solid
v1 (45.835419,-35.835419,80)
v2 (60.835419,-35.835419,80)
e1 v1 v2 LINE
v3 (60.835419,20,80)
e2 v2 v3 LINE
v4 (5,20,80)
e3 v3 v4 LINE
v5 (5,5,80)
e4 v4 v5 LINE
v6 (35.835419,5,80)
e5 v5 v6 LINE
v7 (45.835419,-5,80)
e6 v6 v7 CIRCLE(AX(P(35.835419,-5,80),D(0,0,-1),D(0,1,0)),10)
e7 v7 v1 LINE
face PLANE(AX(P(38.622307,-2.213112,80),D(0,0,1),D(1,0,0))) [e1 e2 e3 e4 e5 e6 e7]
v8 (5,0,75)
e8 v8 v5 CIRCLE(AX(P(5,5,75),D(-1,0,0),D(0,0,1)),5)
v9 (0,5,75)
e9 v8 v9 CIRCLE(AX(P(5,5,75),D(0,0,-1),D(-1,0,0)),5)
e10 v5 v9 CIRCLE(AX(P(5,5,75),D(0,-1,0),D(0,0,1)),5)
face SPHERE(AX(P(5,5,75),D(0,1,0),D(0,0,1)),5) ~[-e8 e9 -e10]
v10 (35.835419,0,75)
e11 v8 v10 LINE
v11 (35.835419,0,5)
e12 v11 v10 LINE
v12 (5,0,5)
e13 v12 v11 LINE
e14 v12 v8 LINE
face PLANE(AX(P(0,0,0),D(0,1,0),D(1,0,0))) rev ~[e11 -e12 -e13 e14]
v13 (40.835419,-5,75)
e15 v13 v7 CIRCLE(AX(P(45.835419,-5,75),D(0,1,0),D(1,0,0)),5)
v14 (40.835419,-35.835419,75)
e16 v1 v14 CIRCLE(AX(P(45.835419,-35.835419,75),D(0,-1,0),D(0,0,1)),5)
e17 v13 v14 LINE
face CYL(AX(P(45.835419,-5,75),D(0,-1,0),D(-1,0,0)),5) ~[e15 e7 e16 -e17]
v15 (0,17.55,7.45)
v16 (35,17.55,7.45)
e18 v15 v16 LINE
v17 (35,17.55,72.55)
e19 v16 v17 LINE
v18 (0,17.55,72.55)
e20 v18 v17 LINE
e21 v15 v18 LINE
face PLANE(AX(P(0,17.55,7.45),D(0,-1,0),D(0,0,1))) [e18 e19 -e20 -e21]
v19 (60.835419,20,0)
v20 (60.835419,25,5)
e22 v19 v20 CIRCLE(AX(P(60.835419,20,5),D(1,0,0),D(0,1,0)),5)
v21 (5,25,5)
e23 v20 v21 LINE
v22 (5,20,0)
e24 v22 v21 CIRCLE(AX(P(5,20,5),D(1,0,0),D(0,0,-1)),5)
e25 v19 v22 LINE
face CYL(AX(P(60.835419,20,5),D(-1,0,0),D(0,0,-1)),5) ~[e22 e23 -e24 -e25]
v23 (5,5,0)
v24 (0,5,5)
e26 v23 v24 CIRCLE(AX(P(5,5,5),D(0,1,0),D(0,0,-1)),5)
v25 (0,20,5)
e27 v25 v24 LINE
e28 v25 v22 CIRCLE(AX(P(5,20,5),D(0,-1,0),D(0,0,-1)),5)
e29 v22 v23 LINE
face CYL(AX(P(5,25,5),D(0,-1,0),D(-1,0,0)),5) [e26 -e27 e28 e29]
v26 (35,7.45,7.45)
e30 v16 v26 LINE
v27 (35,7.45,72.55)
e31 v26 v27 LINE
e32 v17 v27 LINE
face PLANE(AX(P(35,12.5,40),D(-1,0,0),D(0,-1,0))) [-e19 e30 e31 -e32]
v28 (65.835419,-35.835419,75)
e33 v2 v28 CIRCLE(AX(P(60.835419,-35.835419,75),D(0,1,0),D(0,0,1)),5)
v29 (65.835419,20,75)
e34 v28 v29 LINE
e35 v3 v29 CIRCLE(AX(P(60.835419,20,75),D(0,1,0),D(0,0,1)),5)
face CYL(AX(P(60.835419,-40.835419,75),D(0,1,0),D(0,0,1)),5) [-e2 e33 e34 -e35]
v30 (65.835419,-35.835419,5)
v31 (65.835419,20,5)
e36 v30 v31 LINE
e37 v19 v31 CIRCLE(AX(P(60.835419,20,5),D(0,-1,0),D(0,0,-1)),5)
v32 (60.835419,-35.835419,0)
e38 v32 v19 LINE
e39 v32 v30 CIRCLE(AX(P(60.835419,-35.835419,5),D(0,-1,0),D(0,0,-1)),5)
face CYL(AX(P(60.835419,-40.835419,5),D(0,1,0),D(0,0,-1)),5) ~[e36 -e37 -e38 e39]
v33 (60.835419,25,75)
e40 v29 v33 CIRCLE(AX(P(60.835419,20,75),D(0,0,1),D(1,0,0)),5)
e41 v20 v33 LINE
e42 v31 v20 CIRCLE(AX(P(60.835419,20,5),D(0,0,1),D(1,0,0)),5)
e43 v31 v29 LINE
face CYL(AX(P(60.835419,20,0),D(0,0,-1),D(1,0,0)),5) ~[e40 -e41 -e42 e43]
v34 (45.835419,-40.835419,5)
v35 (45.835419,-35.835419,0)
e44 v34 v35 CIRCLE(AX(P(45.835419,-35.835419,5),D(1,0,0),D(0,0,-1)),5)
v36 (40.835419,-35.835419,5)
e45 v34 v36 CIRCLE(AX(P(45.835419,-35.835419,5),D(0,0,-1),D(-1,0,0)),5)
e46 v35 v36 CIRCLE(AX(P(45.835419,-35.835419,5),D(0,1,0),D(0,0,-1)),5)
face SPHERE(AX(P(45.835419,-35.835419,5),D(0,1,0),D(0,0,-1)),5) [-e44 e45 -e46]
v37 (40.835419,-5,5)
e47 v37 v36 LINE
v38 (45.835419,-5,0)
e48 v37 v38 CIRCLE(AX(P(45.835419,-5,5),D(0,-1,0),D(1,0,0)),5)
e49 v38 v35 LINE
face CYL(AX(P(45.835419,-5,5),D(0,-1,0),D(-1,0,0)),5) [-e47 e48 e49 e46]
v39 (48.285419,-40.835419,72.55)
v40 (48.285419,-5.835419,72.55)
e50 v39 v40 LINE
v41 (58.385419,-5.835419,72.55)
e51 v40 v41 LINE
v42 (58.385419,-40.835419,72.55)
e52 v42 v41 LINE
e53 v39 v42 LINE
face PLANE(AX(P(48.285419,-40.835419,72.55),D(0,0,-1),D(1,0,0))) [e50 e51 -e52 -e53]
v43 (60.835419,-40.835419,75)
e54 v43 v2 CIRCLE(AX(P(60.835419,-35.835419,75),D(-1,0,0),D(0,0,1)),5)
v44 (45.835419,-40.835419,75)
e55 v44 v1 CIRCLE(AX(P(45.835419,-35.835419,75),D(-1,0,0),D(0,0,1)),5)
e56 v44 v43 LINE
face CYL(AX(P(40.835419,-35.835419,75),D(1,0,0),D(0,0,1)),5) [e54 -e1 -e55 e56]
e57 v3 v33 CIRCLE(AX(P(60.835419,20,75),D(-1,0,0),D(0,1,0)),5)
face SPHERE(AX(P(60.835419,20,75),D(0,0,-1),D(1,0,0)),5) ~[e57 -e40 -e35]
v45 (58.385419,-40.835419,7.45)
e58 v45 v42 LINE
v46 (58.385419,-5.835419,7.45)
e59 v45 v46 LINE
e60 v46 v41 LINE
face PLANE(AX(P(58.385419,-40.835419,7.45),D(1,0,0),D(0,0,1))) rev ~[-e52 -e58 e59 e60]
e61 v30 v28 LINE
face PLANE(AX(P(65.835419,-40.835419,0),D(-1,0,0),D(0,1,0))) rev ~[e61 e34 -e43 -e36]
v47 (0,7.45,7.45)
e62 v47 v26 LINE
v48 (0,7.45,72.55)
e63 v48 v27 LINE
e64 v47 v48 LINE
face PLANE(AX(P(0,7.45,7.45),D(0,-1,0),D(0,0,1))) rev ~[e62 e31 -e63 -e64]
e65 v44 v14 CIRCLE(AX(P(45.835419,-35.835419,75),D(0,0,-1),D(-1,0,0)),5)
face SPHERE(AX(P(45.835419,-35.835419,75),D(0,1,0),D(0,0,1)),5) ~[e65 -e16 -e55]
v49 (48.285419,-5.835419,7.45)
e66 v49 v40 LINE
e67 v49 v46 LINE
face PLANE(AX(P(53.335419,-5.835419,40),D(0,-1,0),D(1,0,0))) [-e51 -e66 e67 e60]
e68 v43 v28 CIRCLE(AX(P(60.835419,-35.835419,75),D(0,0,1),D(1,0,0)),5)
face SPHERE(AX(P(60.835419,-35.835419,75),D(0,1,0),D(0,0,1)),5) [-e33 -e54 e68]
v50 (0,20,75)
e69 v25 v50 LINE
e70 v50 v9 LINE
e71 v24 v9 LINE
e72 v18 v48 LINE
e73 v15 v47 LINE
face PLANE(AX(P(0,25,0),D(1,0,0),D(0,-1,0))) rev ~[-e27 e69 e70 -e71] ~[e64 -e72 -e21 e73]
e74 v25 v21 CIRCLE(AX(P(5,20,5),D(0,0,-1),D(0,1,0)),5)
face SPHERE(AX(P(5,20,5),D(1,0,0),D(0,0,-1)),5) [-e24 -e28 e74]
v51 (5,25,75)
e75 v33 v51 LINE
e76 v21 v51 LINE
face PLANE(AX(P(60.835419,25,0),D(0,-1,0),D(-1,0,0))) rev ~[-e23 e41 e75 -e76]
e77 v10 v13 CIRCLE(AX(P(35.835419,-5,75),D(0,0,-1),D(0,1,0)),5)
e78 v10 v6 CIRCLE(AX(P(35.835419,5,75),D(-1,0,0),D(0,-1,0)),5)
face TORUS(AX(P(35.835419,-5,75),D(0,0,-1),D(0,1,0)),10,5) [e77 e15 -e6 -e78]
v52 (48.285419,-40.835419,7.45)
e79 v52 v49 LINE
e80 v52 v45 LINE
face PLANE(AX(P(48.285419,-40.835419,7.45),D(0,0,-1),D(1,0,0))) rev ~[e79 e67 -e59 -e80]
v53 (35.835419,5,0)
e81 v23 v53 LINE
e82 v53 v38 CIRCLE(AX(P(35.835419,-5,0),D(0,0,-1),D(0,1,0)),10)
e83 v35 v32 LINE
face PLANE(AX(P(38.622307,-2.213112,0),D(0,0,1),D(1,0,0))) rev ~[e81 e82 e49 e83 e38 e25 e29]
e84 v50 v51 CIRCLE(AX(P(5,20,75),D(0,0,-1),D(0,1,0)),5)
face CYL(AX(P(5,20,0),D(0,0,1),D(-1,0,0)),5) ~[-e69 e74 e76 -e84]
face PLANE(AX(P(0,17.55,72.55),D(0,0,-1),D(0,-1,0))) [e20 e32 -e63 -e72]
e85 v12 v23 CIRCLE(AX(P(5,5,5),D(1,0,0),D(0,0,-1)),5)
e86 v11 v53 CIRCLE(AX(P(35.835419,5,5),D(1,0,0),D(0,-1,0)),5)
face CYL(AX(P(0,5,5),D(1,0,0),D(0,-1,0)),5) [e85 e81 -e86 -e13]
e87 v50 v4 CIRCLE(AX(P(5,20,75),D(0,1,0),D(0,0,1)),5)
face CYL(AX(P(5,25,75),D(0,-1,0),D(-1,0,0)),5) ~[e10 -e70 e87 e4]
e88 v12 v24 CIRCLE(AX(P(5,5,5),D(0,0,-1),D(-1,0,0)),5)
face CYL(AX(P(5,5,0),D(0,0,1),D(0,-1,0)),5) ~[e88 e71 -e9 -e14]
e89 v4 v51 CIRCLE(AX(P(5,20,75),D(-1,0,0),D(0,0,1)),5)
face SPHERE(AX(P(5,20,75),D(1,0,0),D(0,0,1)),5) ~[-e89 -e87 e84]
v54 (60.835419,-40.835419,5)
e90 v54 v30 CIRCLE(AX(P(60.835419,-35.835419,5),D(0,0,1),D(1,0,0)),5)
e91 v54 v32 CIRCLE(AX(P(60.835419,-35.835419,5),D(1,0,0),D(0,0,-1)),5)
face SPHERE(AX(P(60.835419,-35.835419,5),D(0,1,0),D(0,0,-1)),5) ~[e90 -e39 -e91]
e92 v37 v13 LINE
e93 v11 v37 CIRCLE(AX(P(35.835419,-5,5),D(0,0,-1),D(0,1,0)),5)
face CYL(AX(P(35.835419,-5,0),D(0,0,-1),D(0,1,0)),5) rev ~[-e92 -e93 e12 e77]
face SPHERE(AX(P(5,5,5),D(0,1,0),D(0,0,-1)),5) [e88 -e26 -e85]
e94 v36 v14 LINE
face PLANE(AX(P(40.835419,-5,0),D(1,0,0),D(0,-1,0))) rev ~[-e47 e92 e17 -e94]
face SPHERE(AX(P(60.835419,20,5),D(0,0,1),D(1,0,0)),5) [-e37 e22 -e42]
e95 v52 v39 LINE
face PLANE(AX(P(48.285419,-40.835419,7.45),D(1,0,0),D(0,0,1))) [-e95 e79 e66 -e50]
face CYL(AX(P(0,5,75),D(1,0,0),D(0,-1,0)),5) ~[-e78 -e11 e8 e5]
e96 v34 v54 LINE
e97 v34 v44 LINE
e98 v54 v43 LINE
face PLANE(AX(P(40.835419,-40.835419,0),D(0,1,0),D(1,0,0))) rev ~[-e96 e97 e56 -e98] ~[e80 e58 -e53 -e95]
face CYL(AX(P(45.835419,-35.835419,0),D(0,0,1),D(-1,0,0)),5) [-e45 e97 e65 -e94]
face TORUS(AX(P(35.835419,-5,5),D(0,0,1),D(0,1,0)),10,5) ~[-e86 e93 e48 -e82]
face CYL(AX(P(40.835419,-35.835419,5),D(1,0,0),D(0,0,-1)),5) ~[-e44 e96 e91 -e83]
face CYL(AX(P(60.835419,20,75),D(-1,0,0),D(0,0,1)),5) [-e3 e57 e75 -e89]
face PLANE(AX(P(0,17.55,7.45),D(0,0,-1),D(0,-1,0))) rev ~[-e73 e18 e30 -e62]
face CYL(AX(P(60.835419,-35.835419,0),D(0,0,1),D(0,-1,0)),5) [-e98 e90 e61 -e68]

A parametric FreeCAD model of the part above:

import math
import FreeCAD as App
import Part
import Sketcher
from FreeCAD import Vector
Q = App.Units.Quantity


def edges_at(feature, points):
    """Names of the edges that pass closest to the given points."""
    edges = feature.Shape.Edges
    near = lambda p: min(range(len(edges)), key=lambda i: edges[i].distToShape(Part.Vertex(*p))[0])
    return sorted({f"Edge{near(p) + 1}" for p in points})


def add_polygon(sketch, points):
    """Adds a closed chain of lines whose ends are joined by coincident constraints."""
    first, n = sketch.GeometryCount, len(points)
    for a, b in zip(points, points[1:] + points[:1]):
        sketch.addGeometry(Part.LineSegment(App.Vector(*a, 0), App.Vector(*b, 0)), False)
    for i in range(n):
        sketch.addConstraint(Sketcher.Constraint("Coincident", first + i, 2, first + (i + 1) % n, 1))

doc = App.newDocument("Part")
params = doc.addObject("Spreadsheet::Sheet", "Params")
for row, (alias, value) in enumerate([
    ("sketch1_radius", "5 mm"),
    ("sketch1_width", "25 mm"),
    ("pad1_length", "80 mm"),
    ("sketch2_width", "10.1 mm"),
    ("sketch2_height", "65.1 mm"),
    ("pocket1_length", "35 mm"),
    ("sketch3_width", "10.1 mm"),
    ("sketch3_height", "65.1 mm"),
    ("pocket2_length", "35 mm"),
    ("fillet_radius", "5 mm"),
], start=1):
    params.set(f"A{row}", alias)
    params.set(f"B{row}", "=" + value)
    params.setAlias(f"B{row}", alias)

body = doc.addObject("PartDesign::Body", "Body")

# Sketch on XY plane
sketch1 = doc.addObject("Sketcher::SketchObject", "Sketch")
body.addObject(sketch1)
sketch1.AttachmentSupport = (doc.XY_Plane, [""])
sketch1.MapMode = "FlatFace"
sketch1.addGeometry([
    Part.LineSegment(Vector(0, 0, 0), Vector(36, 0, 0)),  # 0
    Part.ArcOfCircle(Part.Circle(Vector(36, -5, 0), Vector(0, 0, 1), 5), math.radians(0), math.radians(90)),  # 1
    Part.LineSegment(Vector(41, -5, 0), Vector(41, -41, 0)),  # 2
    Part.LineSegment(Vector(41, -41, 0), Vector(66, -41, 0)),  # 3
    Part.LineSegment(Vector(66, -41, 0), Vector(66, 20, 0)),  # 4
    Part.ArcOfCircle(Part.Circle(Vector(61, 20, 0), Vector(0, 0, 1), 5), math.radians(0), math.radians(90)),  # 5
    Part.LineSegment(Vector(61, 25, 0), Vector(0, 25, 0)),  # 6
    Part.LineSegment(Vector(0, 25, 0), Vector(0, 0, 0)),  # 7
], False)
sketch1.addConstraint([
    Sketcher.Constraint("Tangent", 0, 2, 1, 2),
    Sketcher.Constraint("Tangent", 1, 1, 2, 1),
    Sketcher.Constraint("Coincident", 2, 2, 3, 1),
    Sketcher.Constraint("Coincident", 3, 2, 4, 1),
    Sketcher.Constraint("Tangent", 4, 2, 5, 1),
    Sketcher.Constraint("Tangent", 5, 2, 6, 1),
    Sketcher.Constraint("Coincident", 6, 2, 7, 1),
    Sketcher.Constraint("Coincident", 7, 2, 0, 1),
    Sketcher.Constraint("Horizontal", 0),
    Sketcher.Constraint("Vertical", 2),
    Sketcher.Constraint("Horizontal", 3),
    Sketcher.Constraint("Vertical", 4),
    Sketcher.Constraint("Horizontal", 6),
    Sketcher.Constraint("Vertical", 7),
    Sketcher.Constraint("Coincident", 7, 2, -1, 1),
    Sketcher.Constraint("Equal", 1, 5),
    Sketcher.Constraint("Equal", 0, 2),
    Sketcher.Constraint("Equal", 6, 4),
    Sketcher.Constraint("Radius", 1, Q("5 mm")),
    Sketcher.Constraint("DistanceX", 3, 1, 3, 2, Q("25 mm")),
    Sketcher.Constraint("DistanceX", 0, 1, 0, 2, Q("35.835419 mm")),
])
sketch1.setExpression("Constraints[18]", "Params.sketch1_radius")
sketch1.setExpression("Constraints[19]", "Params.sketch1_width")
pad1 = doc.addObject("PartDesign::Pad", "Pad")
body.addObject(pad1)
pad1.Profile = sketch1
pad1.setExpression("Length", "Params.pad1_length")

# Sketch on XZ plane
sketch2 = doc.addObject("Sketcher::SketchObject", "Sketch001")
body.addObject(sketch2)
sketch2.AttachmentSupport = (doc.XZ_Plane, [""])
sketch2.MapMode = "FlatFace"
sketch2.AttachmentOffset = App.Placement(Vector(0, 0, 40.835419), App.Rotation())
add_polygon(sketch2, [(48, 73), (48, 7), (58, 7), (58, 73)])  # lines 0-3
sketch2.addConstraint([
    Sketcher.Constraint("Vertical", 0),
    Sketcher.Constraint("Horizontal", 1),
    Sketcher.Constraint("Vertical", 2),
    Sketcher.Constraint("Horizontal", 3),
    Sketcher.Constraint("DistanceX", 1, 1, 1, 2, Q("10.1 mm")),
    Sketcher.Constraint("DistanceY", 0, 2, 0, 1, Q("65.1 mm")),
    Sketcher.Constraint("DistanceY", -1, 1, 0, 2, Q("7.45 mm")),
    Sketcher.Constraint("DistanceX", -1, 1, 0, 2, Q("48.285419 mm")),
])
sketch2.setExpression("Constraints[8]", "Params.sketch2_width")
sketch2.setExpression("Constraints[9]", "Params.sketch2_height")
pocket1 = doc.addObject("PartDesign::Pocket", "Pocket")
body.addObject(pocket1)
pocket1.Profile = sketch2
pocket1.setExpression("Length", "Params.pocket1_length")

# Sketch on YZ plane
sketch3 = doc.addObject("Sketcher::SketchObject", "Sketch002")
body.addObject(sketch3)
sketch3.AttachmentSupport = (doc.YZ_Plane, [""])
sketch3.MapMode = "FlatFace"
add_polygon(sketch3, [(18, 73), (18, 7), (7, 7), (7, 73)])  # lines 0-3
sketch3.addConstraint([
    Sketcher.Constraint("Vertical", 0),
    Sketcher.Constraint("Horizontal", 1),
    Sketcher.Constraint("Vertical", 2),
    Sketcher.Constraint("Horizontal", 3),
    Sketcher.Constraint("DistanceX", 1, 2, 1, 1, Q("10.1 mm")),
    Sketcher.Constraint("DistanceY", 0, 2, 0, 1, Q("65.1 mm")),
    Sketcher.Constraint("DistanceX", -1, 1, 0, 2, Q("17.55 mm")),
    Sketcher.Constraint("DistanceY", -1, 1, 0, 2, Q("7.45 mm")),
])
sketch3.setExpression("Constraints[8]", "Params.sketch3_width")
sketch3.setExpression("Constraints[9]", "Params.sketch3_height")
pocket2 = doc.addObject("PartDesign::Pocket", "Pocket001")
body.addObject(pocket2)
pocket2.Profile = sketch3
pocket2.setExpression("Length", "Params.pocket2_length")
pocket2.Reversed = True
doc.recompute()

fillet = doc.addObject("PartDesign::Fillet", "Fillet")
body.addObject(fillet)
fillet.Base = (pocket2, edges_at(pocket2, [
    (64.371, 23.536, 80),
    (30.418, 25, 80),
    (0, 12.5, 80),
    (17.918, 0, 80),
    (39.371, -1.464, 80),
    (40.835, -22.918, 80),
    (53.335, -40.835, 80),
    (65.835, -10.418, 80),
    (64.371, 23.536, 0),
    (30.418, 25, 0),
    (0, 12.5, 0),
    (17.918, 0, 0),
    (39.371, -1.464, 0),
    (40.835, -22.918, 0),
    (53.335, -40.835, 0),
    (65.835, -10.418, 0),
    (65.835, -40.835, 40),
    (40.835, -40.835, 40),
    (0, 0, 40),
    (0, 25, 40),
]))
fillet.setExpression("Radius", "Params.fillet_radius")

doc.recompute()
